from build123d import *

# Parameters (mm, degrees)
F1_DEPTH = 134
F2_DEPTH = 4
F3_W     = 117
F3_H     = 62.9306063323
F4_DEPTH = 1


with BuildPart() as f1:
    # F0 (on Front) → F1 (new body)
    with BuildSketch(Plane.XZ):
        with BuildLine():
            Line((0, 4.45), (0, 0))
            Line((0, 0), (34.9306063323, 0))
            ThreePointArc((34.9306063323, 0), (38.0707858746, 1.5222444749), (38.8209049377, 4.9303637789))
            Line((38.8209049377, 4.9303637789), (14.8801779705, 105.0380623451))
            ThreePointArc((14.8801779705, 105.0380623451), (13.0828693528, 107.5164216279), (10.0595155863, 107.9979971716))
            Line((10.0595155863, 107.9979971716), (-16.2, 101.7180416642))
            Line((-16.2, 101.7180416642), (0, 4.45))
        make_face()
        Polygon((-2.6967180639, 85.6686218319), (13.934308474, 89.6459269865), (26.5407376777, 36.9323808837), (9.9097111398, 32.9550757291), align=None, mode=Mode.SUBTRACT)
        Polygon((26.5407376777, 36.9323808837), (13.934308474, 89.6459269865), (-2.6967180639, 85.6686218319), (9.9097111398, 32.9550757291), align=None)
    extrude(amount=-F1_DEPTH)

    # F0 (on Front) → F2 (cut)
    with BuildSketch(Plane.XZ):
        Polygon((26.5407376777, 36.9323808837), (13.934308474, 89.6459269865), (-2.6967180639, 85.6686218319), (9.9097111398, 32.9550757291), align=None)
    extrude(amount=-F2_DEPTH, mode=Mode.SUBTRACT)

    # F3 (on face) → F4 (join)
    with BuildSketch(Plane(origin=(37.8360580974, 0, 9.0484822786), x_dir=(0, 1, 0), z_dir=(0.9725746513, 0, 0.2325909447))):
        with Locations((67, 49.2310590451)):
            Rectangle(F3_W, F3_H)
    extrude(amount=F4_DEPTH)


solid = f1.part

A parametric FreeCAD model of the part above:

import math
import FreeCAD as App
import Part
import Sketcher
Q = App.Units.Quantity

doc = App.newDocument("Part")
body = doc.addObject("PartDesign::Body", "Body")

sketch1 = body.newObject("Sketcher::SketchObject", "Sketch")
sketch1.AttachmentSupport = (doc.getObject("XZ_Plane"), [""])
sketch1.MapMode = "FlatFace"
sketch1.addGeometry(Part.LineSegment(App.Vector(0, 4.45, 0), App.Vector(0, 0, 0)), False)
sketch1.addGeometry(Part.LineSegment(App.Vector(0, 0, 0), App.Vector(34.930606, 0, 0)), False)
sketch1.addGeometry(Part.ArcOfCircle(Part.Circle(App.Vector(34.930606, 4, 0), App.Vector(0, 0, 1), 4), math.radians(-90), math.radians(13.44966)), False)
sketch1.addGeometry(Part.LineSegment(App.Vector(38.820905, 4.930364, 0), App.Vector(14.880178, 105.038062, 0)), False)
sketch1.addGeometry(Part.ArcOfCircle(Part.Circle(App.Vector(10.989879, 104.107699, 0), App.Vector(0, 0, 1), 4), math.radians(13.44966), math.radians(103.44966)), False)
sketch1.addGeometry(Part.LineSegment(App.Vector(10.059516, 107.997997, 0), App.Vector(-16.2, 101.718042, 0)), False)
sketch1.addGeometry(Part.LineSegment(App.Vector(-16.2, 101.718042, 0), App.Vector(0, 4.45, 0)), False)
sketch1.addConstraint(Sketcher.Constraint("Coincident", 0, 2, 1, 1))
sketch1.addConstraint(Sketcher.Constraint("Coincident", 1, 2, 2, 1))
sketch1.addConstraint(Sketcher.Constraint("Coincident", 2, 2, 3, 1))
sketch1.addConstraint(Sketcher.Constraint("Coincident", 3, 2, 4, 1))
sketch1.addConstraint(Sketcher.Constraint("Coincident", 4, 2, 5, 1))
sketch1.addConstraint(Sketcher.Constraint("Coincident", 5, 2, 6, 1))
sketch1.addConstraint(Sketcher.Constraint("Coincident", 6, 2, 0, 1))
sketch1.addConstraint(Sketcher.Constraint("Vertical", 0))
sketch1.addConstraint(Sketcher.Constraint("Horizontal", 1))
sketch1.addConstraint(Sketcher.Constraint("Coincident", 0, 2, -1, 1))
sketch1.addConstraint(Sketcher.Constraint("Radius", 2, Q("4 mm")))
sketch1.addConstraint(Sketcher.Constraint("Radius", 4, Q("4 mm")))
sketch1.addConstraint(Sketcher.Constraint("Distance", 5, Q("27 mm")))
sketch1.addConstraint(Sketcher.Constraint("DistanceY", 0, 2, 0, 1, Q("4.45 mm")))
sketch1.addConstraint(Sketcher.Constraint("DistanceX", 5, 2, -1, 1, Q("16.2 mm")))
sketch1.addConstraint(Sketcher.Constraint("DistanceY", -1, 1, 4, 3, Q("104.107699 mm")))
sketch1.addConstraint(Sketcher.Constraint("DistanceX", 2, 3, 2, 2, Q("3.890299 mm")))
sketch1.addConstraint(Sketcher.Constraint("DistanceX", 1, 2, 2, 2, Q("3.890299 mm")))
sketch1.addConstraint(Sketcher.Constraint("DistanceX", 4, 3, 3, 2, Q("3.890299 mm")))
sketch1.addConstraint(Sketcher.Constraint("DistanceY", 4, 3, 4, 2, Q("3.890299 mm")))
sketch1.addConstraint(Sketcher.Constraint("Distance", 6, Q("98.60787 mm")))
sketch1.addConstraint(Sketcher.Constraint("DistanceX", 1, 1, 1, 2, Q("34.930606 mm")))
pad1 = body.newObject("PartDesign::Pad", "Pad")
pad1.Profile = sketch1
pad1.Length = 134
pad1.Reversed = True

sketch2 = body.newObject("Sketcher::SketchObject", "Sketch001")
sketch2.AttachmentSupport = (doc.getObject("XZ_Plane"), [""])
sketch2.MapMode = "FlatFace"
sketch2.addGeometry(Part.LineSegment(App.Vector(26.540738, 36.932381, 0), App.Vector(13.934308, 89.645927, 0)), False)
sketch2.addGeometry(Part.LineSegment(App.Vector(13.934308, 89.645927, 0), App.Vector(-2.696718, 85.668622, 0)), False)
sketch2.addGeometry(Part.LineSegment(App.Vector(-2.696718, 85.668622, 0), App.Vector(9.909711, 32.955076, 0)), False)
sketch2.addGeometry(Part.LineSegment(App.Vector(9.909711, 32.955076, 0), App.Vector(26.540738, 36.932381, 0)), False)
sketch2.addConstraint(Sketcher.Constraint("Coincident", 0, 2, 1, 1))
sketch2.addConstraint(Sketcher.Constraint("Coincident", 1, 2, 2, 1))
sketch2.addConstraint(Sketcher.Constraint("Coincident", 2, 2, 3, 1))
sketch2.addConstraint(Sketcher.Constraint("Coincident", 3, 2, 0, 1))
sketch2.addConstraint(Sketcher.Constraint("Perpendicular", 0, 1))
sketch2.addConstraint(Sketcher.Constraint("Perpendicular", 1, 2))
sketch2.addConstraint(Sketcher.Constraint("Perpendicular", 2, 3))
sketch2.addConstraint(Sketcher.Constraint("Distance", 0, Q("54.2 mm")))
sketch2.addConstraint(Sketcher.Constraint("Distance", 1, Q("17.1 mm")))
sketch2.addConstraint(Sketcher.Constraint("DistanceX", -1, 1, 0, 2, Q("13.934308 mm")))
sketch2.addConstraint(Sketcher.Constraint("DistanceX", 1, 2, -1, 1, Q("2.696718 mm")))
sketch2.addConstraint(Sketcher.Constraint("DistanceY", -1, 1, 1, 2, Q("85.668622 mm")))
pocket1 = body.newObject("PartDesign::Pocket", "Pocket")
pocket1.Profile = sketch2
pocket1.Length = 4

sketch3 = body.newObject("Sketcher::SketchObject", "Sketch002")
sketch3.Placement = App.Placement(App.Vector(37.836058, 0, 9.048482), App.Rotation(App.Vector(0, 1, 0), App.Vector(-0.232590945, 0, 0.972574651), App.Vector(0.972574651, 0, 0.232590945), "ZXY"))
sketch3.addGeometry(Part.LineSegment(App.Vector(8.5, 80.696362, 0), App.Vector(8.5, 17.765756, 0)), False)
sketch3.addGeometry(Part.LineSegment(App.Vector(8.5, 17.765756, 0), App.Vector(125.5, 17.765756, 0)), False)
sketch3.addGeometry(Part.LineSegment(App.Vector(125.5, 17.765756, 0), App.Vector(125.5, 80.696362, 0)), False)
sketch3.addGeometry(Part.LineSegment(App.Vector(125.5, 80.696362, 0), App.Vector(8.5, 80.696362, 0)), False)
sketch3.addConstraint(Sketcher.Constraint("Coincident", 0, 2, 1, 1))
sketch3.addConstraint(Sketcher.Constraint("Coincident", 1, 2, 2, 1))
sketch3.addConstraint(Sketcher.Constraint("Coincident", 2, 2, 3, 1))
sketch3.addConstraint(Sketcher.Constraint("Coincident", 3, 2, 0, 1))
sketch3.addConstraint(Sketcher.Constraint("Vertical", 0))
sketch3.addConstraint(Sketcher.Constraint("Horizontal", 1))
sketch3.addConstraint(Sketcher.Constraint("Vertical", 2))
sketch3.addConstraint(Sketcher.Constraint("Horizontal", 3))
sketch3.addConstraint(Sketcher.Constraint("DistanceX", 1, 1, 1, 2, Q("117 mm")))
sketch3.addConstraint(Sketcher.Constraint("DistanceX", -1, 1, 0, 2, Q("8.5 mm")))
sketch3.addConstraint(Sketcher.Constraint("DistanceY", 0, 2, 0, 1, Q("62.930606 mm")))
sketch3.addConstraint(Sketcher.Constraint("DistanceY", -1, 1, 0, 2, Q("17.765756 mm")))
pad2 = body.newObject("PartDesign::Pad", "Pad001")
pad2.Profile = sketch3
pad2.Length = 1

doc.recompute()
